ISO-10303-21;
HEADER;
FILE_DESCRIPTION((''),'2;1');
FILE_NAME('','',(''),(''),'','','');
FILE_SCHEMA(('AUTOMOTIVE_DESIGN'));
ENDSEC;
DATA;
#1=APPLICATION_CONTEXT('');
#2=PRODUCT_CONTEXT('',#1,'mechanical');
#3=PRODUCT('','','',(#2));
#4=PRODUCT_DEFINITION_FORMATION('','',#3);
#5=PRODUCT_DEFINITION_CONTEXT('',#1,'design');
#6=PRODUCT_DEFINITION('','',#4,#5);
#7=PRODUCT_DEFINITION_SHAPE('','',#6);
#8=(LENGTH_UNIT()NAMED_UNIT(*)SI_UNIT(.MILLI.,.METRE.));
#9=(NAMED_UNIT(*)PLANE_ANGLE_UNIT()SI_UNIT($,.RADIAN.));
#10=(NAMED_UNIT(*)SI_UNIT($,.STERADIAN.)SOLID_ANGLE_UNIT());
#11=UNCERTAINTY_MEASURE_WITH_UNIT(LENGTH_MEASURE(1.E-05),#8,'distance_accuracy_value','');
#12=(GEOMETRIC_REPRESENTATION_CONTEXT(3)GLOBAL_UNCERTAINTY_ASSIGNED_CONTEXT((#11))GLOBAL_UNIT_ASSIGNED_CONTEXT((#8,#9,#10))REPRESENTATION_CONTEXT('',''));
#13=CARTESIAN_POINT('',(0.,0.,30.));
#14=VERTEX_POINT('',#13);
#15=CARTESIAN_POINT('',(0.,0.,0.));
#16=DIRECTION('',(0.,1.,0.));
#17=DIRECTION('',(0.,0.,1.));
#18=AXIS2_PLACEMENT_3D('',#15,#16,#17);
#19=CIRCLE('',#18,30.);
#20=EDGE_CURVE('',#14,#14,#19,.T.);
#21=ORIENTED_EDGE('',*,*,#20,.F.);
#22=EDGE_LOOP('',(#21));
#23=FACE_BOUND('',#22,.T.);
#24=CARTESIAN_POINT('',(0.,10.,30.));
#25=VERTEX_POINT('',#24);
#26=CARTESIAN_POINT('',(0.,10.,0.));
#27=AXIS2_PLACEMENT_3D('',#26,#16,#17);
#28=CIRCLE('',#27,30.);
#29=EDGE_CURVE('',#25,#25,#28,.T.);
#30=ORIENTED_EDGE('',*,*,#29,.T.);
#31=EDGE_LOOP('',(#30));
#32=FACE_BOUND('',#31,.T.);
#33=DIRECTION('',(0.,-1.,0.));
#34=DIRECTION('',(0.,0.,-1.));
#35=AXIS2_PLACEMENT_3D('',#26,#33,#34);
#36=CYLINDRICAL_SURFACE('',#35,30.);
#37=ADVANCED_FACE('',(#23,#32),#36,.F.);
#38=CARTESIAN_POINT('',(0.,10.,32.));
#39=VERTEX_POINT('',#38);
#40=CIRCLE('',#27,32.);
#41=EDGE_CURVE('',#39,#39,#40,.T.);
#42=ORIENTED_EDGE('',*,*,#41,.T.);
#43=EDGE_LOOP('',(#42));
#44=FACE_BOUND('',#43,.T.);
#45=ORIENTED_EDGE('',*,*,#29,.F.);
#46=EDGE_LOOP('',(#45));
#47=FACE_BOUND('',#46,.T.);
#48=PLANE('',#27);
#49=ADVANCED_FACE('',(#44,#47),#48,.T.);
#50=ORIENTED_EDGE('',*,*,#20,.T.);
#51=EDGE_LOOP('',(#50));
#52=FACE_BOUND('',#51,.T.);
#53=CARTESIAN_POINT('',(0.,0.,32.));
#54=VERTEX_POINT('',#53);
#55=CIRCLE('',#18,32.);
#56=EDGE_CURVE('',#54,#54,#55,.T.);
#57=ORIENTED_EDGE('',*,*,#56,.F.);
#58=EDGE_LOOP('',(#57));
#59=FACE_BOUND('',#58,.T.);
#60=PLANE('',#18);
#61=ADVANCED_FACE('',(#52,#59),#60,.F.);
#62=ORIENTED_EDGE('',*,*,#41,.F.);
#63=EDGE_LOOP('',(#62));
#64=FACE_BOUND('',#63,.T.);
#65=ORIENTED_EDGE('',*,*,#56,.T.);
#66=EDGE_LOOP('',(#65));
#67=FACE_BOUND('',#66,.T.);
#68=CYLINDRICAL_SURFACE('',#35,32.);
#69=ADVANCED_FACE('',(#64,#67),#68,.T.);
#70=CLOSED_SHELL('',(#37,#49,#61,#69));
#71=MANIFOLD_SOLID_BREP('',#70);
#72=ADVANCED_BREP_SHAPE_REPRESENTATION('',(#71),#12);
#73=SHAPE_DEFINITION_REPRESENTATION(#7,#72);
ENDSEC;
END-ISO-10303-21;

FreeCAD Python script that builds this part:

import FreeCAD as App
import Part
import Sketcher

V = App.Vector

doc = App.newDocument("Part")
body = doc.addObject("PartDesign::Body", "Body")

sketch1 = doc.addObject("Sketcher::SketchObject", "Sketch")
body.addObject(sketch1)
sketch1.AttachmentSupport = (doc.XZ_Plane, [""])
sketch1.MapMode = "FlatFace"
sketch1.addGeometry([
    Part.Circle(V(0, 0, 0), V(0, 0, 1), 32),
    Part.Circle(V(0, 0, 0), V(0, 0, 1), 30),
], False)
sketch1.addConstraint([
    Sketcher.Constraint("Coincident", 0, 3, -1, 1),
    Sketcher.Constraint("Coincident", 1, 3, -1, 1),
    Sketcher.Constraint("Diameter", 0, 64.0),
    Sketcher.Constraint("Diameter", 1, 60.0),
])
pad1 = doc.addObject("PartDesign::Pad", "Pad")
body.addObject(pad1)
pad1.Profile = sketch1
pad1.Length = 10
pad1.Reversed = True

doc.recompute()
